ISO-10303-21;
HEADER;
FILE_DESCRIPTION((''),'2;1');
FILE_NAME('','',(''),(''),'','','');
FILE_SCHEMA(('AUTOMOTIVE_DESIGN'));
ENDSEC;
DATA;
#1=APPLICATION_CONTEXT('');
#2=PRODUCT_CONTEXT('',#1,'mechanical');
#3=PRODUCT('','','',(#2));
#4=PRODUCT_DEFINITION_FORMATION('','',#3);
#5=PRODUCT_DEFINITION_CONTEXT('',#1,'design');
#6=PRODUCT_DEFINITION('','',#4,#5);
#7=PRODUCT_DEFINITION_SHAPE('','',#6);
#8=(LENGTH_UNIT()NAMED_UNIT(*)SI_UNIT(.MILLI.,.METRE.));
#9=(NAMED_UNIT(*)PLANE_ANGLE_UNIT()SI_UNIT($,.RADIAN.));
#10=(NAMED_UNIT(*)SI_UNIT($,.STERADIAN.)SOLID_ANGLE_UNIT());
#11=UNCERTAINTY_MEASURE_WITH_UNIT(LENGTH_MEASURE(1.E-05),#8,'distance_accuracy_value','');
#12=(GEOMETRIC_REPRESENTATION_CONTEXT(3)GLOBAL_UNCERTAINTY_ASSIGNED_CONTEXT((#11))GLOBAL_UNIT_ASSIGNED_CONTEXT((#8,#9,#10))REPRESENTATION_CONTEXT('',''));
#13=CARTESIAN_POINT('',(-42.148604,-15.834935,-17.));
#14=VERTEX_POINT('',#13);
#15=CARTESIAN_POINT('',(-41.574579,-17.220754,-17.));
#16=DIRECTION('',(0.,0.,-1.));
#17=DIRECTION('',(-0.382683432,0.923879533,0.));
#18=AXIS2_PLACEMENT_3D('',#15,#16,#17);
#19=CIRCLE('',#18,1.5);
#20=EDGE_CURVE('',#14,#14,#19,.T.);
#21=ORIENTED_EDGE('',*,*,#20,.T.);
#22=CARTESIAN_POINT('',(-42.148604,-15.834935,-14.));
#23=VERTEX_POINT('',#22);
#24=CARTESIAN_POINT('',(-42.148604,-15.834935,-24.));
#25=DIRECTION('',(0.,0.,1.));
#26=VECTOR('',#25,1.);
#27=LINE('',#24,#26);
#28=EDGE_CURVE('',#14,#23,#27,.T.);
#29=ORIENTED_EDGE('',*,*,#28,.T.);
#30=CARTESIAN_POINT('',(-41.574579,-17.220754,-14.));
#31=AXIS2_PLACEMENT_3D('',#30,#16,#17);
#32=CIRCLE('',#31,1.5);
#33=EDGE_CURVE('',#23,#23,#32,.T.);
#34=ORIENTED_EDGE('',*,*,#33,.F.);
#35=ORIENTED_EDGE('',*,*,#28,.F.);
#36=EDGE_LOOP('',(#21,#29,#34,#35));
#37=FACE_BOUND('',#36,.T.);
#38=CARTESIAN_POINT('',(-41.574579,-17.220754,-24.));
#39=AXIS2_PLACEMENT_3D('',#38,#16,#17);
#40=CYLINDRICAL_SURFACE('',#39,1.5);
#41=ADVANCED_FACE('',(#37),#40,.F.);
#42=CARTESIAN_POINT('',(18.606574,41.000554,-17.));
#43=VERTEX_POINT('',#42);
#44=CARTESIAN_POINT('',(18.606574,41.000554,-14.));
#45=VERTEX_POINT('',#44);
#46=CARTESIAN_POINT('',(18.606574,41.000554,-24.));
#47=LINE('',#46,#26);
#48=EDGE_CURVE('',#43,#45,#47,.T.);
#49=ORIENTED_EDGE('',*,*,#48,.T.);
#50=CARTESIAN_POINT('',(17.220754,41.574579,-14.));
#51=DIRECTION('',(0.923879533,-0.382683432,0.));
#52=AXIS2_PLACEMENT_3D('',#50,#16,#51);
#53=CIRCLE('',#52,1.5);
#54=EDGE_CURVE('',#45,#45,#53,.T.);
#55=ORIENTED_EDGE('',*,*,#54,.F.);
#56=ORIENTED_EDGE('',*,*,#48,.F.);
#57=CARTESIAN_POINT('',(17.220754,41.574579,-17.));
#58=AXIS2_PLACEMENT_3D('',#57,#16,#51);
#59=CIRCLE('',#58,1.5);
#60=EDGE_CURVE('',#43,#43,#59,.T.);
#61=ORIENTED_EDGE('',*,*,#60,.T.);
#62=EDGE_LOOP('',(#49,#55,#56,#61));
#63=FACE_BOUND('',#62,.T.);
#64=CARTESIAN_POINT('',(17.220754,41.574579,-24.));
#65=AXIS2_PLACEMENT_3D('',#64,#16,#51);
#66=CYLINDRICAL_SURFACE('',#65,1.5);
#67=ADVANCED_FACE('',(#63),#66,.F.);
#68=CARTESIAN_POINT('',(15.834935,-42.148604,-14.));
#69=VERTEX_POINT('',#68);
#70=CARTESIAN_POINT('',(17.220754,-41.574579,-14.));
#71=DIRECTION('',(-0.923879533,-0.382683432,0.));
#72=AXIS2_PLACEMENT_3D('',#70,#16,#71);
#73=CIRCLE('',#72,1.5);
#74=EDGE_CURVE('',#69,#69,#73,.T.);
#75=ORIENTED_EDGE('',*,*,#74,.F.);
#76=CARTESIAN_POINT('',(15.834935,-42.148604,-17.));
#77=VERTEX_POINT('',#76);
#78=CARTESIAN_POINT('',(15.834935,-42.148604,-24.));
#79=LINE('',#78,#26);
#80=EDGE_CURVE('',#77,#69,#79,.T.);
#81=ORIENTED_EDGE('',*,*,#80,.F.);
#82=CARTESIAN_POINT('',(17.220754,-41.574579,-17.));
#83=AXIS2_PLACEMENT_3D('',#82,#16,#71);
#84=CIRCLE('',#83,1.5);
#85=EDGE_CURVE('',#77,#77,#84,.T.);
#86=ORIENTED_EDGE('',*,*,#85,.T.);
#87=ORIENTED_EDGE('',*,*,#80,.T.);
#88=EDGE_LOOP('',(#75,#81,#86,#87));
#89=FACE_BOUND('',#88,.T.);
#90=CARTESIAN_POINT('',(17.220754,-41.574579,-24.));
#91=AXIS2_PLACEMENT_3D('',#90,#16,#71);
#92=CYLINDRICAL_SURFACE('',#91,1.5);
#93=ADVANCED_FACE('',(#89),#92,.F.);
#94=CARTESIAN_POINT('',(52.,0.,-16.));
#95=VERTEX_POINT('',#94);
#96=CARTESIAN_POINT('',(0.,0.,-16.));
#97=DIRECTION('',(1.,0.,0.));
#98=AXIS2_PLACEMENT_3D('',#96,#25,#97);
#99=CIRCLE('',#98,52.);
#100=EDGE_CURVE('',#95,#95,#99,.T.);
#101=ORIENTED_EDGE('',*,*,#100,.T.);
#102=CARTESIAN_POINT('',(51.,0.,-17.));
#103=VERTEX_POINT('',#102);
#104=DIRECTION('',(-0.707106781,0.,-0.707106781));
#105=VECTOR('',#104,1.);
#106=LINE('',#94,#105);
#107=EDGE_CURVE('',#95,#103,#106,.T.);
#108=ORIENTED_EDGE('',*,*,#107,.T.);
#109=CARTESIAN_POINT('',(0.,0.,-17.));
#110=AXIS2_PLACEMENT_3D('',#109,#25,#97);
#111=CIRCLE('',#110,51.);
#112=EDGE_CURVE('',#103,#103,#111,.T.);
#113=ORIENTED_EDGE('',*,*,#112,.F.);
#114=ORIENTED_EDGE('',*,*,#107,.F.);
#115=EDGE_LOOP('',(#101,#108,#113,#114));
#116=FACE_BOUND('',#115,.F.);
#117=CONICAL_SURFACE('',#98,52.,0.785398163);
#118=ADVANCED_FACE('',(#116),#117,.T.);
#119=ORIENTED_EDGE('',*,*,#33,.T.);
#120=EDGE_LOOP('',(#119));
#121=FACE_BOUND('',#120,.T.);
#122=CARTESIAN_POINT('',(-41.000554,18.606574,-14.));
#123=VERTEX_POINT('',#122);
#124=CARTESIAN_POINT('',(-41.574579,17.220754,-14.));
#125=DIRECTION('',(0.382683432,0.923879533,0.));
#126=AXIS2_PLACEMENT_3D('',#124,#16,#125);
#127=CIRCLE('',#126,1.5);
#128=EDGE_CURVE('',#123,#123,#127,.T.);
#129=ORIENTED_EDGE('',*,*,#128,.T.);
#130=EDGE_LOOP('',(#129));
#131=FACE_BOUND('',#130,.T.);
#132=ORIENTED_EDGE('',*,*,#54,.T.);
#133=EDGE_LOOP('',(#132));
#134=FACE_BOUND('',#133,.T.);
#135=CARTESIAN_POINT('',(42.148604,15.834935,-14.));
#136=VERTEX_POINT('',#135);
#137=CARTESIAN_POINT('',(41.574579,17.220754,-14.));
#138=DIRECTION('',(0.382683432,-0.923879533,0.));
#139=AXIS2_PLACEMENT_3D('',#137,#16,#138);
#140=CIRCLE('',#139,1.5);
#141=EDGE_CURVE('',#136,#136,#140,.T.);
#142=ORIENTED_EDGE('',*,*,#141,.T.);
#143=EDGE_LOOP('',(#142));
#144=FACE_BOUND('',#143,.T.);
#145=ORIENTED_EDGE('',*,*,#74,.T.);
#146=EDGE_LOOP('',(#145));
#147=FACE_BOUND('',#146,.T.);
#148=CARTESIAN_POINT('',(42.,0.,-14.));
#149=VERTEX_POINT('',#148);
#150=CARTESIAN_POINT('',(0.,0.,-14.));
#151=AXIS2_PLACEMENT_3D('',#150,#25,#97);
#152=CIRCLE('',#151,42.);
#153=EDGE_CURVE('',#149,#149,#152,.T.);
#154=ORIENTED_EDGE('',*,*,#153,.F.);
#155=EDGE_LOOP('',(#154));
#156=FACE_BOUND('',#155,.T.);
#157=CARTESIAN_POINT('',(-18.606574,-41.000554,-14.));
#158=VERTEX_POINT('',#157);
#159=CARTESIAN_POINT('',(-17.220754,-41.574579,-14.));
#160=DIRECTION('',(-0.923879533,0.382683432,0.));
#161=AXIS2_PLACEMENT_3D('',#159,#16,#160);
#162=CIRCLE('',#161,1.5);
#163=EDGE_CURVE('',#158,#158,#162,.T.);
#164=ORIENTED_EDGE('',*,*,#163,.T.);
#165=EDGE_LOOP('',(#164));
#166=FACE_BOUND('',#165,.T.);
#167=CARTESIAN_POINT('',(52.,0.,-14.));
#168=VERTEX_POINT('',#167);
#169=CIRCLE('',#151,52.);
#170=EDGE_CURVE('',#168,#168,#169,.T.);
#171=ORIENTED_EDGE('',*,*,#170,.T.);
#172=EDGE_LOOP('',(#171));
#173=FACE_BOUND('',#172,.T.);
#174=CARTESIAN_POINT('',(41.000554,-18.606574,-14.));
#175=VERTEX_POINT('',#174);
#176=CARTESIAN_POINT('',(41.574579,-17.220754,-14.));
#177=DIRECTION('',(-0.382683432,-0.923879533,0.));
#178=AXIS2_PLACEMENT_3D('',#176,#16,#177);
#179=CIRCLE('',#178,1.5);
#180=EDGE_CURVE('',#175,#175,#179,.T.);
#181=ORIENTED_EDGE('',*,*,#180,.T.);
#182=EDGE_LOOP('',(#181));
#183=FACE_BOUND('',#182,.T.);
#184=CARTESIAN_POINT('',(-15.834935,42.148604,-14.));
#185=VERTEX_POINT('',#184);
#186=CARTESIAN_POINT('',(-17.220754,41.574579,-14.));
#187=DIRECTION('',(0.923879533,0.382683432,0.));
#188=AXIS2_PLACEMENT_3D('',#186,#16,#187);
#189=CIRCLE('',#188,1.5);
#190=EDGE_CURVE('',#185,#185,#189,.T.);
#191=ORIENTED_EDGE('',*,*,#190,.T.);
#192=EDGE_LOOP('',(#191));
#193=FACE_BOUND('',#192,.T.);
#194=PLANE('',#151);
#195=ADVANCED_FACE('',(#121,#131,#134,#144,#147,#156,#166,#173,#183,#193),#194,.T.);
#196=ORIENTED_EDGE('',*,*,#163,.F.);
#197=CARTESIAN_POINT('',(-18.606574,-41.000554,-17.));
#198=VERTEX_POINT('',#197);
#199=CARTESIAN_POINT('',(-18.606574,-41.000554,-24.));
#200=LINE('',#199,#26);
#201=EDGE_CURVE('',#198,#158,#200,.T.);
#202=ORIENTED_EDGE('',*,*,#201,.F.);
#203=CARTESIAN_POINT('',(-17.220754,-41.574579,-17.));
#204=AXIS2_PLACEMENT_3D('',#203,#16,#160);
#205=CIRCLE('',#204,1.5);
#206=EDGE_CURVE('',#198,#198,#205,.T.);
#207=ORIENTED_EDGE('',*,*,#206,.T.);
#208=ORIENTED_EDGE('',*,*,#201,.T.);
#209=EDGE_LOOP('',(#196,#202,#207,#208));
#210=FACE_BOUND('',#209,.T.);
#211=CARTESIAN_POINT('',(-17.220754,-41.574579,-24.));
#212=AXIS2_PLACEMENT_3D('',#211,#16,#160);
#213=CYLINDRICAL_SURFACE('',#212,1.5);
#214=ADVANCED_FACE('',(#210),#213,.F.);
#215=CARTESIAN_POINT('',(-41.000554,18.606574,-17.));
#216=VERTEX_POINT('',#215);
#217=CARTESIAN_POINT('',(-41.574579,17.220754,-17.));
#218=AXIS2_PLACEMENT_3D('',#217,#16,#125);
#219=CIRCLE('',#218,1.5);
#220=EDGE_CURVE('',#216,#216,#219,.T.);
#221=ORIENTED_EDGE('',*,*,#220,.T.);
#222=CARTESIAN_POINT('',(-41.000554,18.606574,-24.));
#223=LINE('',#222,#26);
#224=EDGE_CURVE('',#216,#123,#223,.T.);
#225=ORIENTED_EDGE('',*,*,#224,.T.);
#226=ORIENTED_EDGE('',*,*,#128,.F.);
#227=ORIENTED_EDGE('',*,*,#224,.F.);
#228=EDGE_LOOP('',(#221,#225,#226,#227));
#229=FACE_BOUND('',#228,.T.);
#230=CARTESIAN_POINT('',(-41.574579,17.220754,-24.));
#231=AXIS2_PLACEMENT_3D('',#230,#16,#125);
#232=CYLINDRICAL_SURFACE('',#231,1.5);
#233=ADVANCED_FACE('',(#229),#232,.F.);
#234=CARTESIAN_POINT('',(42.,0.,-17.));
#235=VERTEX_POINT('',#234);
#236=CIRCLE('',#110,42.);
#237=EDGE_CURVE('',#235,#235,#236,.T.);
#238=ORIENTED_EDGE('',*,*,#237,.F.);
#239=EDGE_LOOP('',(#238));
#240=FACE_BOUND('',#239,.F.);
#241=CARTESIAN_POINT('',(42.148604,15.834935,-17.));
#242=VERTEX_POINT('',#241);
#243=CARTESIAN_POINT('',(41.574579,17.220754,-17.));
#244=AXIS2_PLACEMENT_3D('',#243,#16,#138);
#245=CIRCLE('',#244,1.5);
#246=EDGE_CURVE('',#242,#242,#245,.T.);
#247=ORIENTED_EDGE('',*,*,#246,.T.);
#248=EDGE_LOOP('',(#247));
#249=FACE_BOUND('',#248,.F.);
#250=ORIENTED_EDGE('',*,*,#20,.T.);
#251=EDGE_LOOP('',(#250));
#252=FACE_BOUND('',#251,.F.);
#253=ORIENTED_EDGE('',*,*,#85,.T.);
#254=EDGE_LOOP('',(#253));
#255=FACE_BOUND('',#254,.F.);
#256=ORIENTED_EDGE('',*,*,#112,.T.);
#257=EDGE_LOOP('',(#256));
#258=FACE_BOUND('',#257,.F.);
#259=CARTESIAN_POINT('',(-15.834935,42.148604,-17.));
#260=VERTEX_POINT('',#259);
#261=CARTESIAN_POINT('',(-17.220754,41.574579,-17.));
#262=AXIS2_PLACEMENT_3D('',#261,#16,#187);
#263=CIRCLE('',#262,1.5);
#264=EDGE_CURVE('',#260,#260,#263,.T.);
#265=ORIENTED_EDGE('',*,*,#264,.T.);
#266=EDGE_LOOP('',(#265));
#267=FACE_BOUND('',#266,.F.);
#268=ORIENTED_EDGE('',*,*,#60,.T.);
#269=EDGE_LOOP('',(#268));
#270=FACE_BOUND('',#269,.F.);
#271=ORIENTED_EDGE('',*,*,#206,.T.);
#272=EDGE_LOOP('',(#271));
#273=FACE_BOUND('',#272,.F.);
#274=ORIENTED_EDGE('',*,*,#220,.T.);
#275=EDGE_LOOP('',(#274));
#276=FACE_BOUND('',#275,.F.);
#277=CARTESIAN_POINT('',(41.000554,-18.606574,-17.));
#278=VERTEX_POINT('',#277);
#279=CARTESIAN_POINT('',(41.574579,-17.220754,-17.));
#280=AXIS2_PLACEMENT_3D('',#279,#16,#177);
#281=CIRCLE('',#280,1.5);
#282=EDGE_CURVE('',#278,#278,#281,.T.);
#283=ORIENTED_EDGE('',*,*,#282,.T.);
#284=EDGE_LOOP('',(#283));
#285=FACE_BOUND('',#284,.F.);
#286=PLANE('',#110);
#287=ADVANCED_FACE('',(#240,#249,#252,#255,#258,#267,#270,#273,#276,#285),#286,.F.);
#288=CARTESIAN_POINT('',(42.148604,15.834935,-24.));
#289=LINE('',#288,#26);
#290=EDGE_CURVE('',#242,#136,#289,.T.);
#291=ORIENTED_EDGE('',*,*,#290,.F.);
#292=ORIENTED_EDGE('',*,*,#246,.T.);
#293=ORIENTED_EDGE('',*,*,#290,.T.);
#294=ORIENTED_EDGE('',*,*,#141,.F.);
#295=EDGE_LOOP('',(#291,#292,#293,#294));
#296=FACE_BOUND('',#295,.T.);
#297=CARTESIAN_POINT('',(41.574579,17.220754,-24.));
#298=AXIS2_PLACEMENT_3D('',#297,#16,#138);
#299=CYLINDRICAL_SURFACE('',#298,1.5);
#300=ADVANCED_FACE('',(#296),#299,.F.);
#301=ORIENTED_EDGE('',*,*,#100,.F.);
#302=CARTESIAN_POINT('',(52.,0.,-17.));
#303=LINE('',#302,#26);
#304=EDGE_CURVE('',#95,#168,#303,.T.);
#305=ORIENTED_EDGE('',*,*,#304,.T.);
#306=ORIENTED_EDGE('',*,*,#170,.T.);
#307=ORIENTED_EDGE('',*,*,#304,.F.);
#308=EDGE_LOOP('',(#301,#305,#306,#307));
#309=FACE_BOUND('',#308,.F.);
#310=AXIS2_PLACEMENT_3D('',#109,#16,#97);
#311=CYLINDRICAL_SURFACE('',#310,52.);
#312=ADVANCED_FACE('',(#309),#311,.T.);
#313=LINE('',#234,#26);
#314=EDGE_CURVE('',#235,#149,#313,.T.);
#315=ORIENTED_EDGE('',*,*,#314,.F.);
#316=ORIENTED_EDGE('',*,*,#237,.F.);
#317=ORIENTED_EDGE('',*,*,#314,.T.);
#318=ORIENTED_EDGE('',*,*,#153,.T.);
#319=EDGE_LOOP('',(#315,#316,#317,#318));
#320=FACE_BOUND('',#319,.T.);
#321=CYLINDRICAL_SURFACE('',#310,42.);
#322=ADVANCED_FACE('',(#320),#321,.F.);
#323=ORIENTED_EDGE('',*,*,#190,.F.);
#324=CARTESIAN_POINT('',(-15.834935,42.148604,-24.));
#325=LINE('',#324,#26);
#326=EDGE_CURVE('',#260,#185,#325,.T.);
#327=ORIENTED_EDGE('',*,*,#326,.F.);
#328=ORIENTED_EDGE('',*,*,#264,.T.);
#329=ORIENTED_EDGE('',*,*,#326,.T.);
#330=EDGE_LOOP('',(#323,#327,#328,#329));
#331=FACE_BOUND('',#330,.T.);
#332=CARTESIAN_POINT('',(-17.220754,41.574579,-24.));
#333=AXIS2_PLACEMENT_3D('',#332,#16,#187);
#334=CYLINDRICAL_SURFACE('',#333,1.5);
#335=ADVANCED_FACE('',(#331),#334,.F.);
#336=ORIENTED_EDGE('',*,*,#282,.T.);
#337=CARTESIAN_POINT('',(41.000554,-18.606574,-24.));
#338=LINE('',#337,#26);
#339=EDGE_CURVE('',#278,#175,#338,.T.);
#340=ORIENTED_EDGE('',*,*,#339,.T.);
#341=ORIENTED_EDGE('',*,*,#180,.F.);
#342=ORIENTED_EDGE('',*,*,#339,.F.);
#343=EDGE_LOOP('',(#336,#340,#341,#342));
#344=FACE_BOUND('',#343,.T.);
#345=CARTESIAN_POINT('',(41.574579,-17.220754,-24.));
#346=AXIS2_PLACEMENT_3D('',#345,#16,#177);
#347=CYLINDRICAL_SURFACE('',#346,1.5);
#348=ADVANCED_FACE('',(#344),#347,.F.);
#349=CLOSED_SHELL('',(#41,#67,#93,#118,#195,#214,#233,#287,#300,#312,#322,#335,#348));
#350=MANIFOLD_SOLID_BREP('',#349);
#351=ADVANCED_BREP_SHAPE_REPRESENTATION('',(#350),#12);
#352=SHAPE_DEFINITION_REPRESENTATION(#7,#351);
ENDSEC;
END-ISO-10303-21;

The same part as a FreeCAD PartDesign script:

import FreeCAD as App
import Part
import Sketcher
from FreeCAD import Vector


def edges_at(feature, points):
    """Names of the edges that pass closest to the given points."""
    edges = feature.Shape.Edges
    near = lambda p: min(range(len(edges)), key=lambda i: edges[i].distToShape(Part.Vertex(*p))[0])
    return sorted({f"Edge{near(p) + 1}" for p in points})

doc = App.newDocument("Part")
body = doc.addObject("PartDesign::Body", "Body")

sketch1 = body.newObject("Sketcher::SketchObject", "Sketch")
sketch1.AttachmentSupport = (doc.getObject("XY_Plane"), [""])
sketch1.MapMode = "FlatFace"
sketch1.addGeometry(Part.Circle(Vector(0, 0, 0), Vector(0, 0, 1), 1.5), False)
sketch1.addConstraint(Sketcher.Constraint("Coincident", 0, 3, -1, 1))
sketch1.addConstraint(Sketcher.Constraint("Diameter", 0, 3.0))
pad1 = body.newObject("PartDesign::Pad", "Pad")
pad1.Profile = sketch1
pad1.Length = 20
body2 = doc.addObject("PartDesign::Body", "Body001")
doc.recompute()

body.Placement = App.Placement(Vector(-31.819805, 31.819805, -18), App.Rotation(Vector(0, 0, 1), 45))
boolean = body2.newObject("PartDesign::Boolean", "Boolean")
boolean.Type = "Fuse"
boolean.addObjects([body])
body3 = doc.addObject("PartDesign::Body", "Body002")

sketch2 = body3.newObject("Sketcher::SketchObject", "Sketch001")
sketch2.AttachmentSupport = (doc.getObject("XY_Plane002"), [""])
sketch2.MapMode = "FlatFace"
sketch2.AttachmentOffset = App.Placement(Vector(0, 0, -18), App.Rotation())
sketch2.addGeometry(Part.Circle(Vector(-45, 0, 0), Vector(0, 0, 1), 1.5), False)
sketch2.addConstraint(Sketcher.Constraint("PointOnObject", 0, 3, -1))
sketch2.addConstraint(Sketcher.Constraint("Diameter", 0, 3.0))
sketch2.addConstraint(Sketcher.Constraint("DistanceX", 0, 3, -1, 1, 45.0))
pad2 = body3.newObject("PartDesign::Pad", "Pad001")
pad2.Profile = sketch2
pad2.Length = 20
body4 = doc.addObject("PartDesign::Body", "Body003")

sketch3 = body4.newObject("Sketcher::SketchObject", "Sketch002")
sketch3.AttachmentSupport = (doc.getObject("XY_Plane003"), [""])
sketch3.MapMode = "FlatFace"
sketch3.addGeometry(Part.Circle(Vector(0, 0, 0), Vector(0, 0, 1), 1.5), False)
sketch3.addConstraint(Sketcher.Constraint("Coincident", 0, 3, -1, 1))
sketch3.addConstraint(Sketcher.Constraint("Diameter", 0, 3.0))
pad3 = body4.newObject("PartDesign::Pad", "Pad002")
pad3.Profile = sketch3
pad3.Length = 20
body5 = doc.addObject("PartDesign::Body", "Body004")
doc.recompute()

body4.Placement = App.Placement(Vector(-31.819805, -31.819805, -18), App.Rotation(Vector(0, 0, 1), 135))
boolean2 = body5.newObject("PartDesign::Boolean", "Boolean001")
boolean2.Type = "Fuse"
boolean2.addObjects([body4])
body6 = doc.addObject("PartDesign::Body", "Body005")

sketch4 = body6.newObject("Sketcher::SketchObject", "Sketch003")
sketch4.AttachmentSupport = (doc.getObject("XY_Plane005"), [""])
sketch4.MapMode = "FlatFace"
sketch4.AttachmentOffset = App.Placement(Vector(0, 0, -18), App.Rotation())
sketch4.addGeometry(Part.Circle(Vector(0, -45, 0), Vector(0, 0, 1), 1.5), False)
sketch4.addConstraint(Sketcher.Constraint("PointOnObject", 0, 3, -2))
sketch4.addConstraint(Sketcher.Constraint("Diameter", 0, 3.0))
sketch4.addConstraint(Sketcher.Constraint("DistanceY", 0, 3, -1, 1, 45.0))
pad4 = body6.newObject("PartDesign::Pad", "Pad003")
pad4.Profile = sketch4
pad4.Length = 20
body7 = doc.addObject("PartDesign::Body", "Body006")

sketch5 = body7.newObject("Sketcher::SketchObject", "Sketch004")
sketch5.AttachmentSupport = (doc.getObject("XY_Plane006"), [""])
sketch5.MapMode = "FlatFace"
sketch5.addGeometry(Part.Circle(Vector(0, 0, 0), Vector(0, 0, 1), 1.5), False)
sketch5.addConstraint(Sketcher.Constraint("Coincident", 0, 3, -1, 1))
sketch5.addConstraint(Sketcher.Constraint("Diameter", 0, 3.0))
pad5 = body7.newObject("PartDesign::Pad", "Pad004")
pad5.Profile = sketch5
pad5.Length = 20
body8 = doc.addObject("PartDesign::Body", "Body007")
doc.recompute()

body7.Placement = App.Placement(Vector(31.819805, -31.819805, -18), App.Rotation(Vector(0, 0, 1), 225))
boolean3 = body8.newObject("PartDesign::Boolean", "Boolean002")
boolean3.Type = "Fuse"
boolean3.addObjects([body7])
body9 = doc.addObject("PartDesign::Body", "Body008")

sketch6 = body9.newObject("Sketcher::SketchObject", "Sketch005")
sketch6.AttachmentSupport = (doc.getObject("XY_Plane008"), [""])
sketch6.MapMode = "FlatFace"
sketch6.AttachmentOffset = App.Placement(Vector(0, 0, -18), App.Rotation())
sketch6.addGeometry(Part.Circle(Vector(45, 0, 0), Vector(0, 0, 1), 1.5), False)
sketch6.addConstraint(Sketcher.Constraint("PointOnObject", 0, 3, -1))
sketch6.addConstraint(Sketcher.Constraint("Diameter", 0, 3.0))
sketch6.addConstraint(Sketcher.Constraint("DistanceX", -1, 1, 0, 3, 45.0))
pad6 = body9.newObject("PartDesign::Pad", "Pad005")
pad6.Profile = sketch6
pad6.Length = 20
body10 = doc.addObject("PartDesign::Body", "Body009")

sketch7 = body10.newObject("Sketcher::SketchObject", "Sketch006")
sketch7.AttachmentSupport = (doc.getObject("XY_Plane009"), [""])
sketch7.MapMode = "FlatFace"
sketch7.addGeometry(Part.Circle(Vector(0, 0, 0), Vector(0, 0, 1), 1.5), False)
sketch7.addConstraint(Sketcher.Constraint("Coincident", 0, 3, -1, 1))
sketch7.addConstraint(Sketcher.Constraint("Diameter", 0, 3.0))
pad7 = body10.newObject("PartDesign::Pad", "Pad006")
pad7.Profile = sketch7
pad7.Length = 20
body11 = doc.addObject("PartDesign::Body", "Body010")
doc.recompute()

body10.Placement = App.Placement(Vector(31.819805, 31.819805, -18), App.Rotation(Vector(0, 0, -1), 45))
boolean4 = body11.newObject("PartDesign::Boolean", "Boolean003")
boolean4.Type = "Fuse"
boolean4.addObjects([body10])
body12 = doc.addObject("PartDesign::Body", "Body011")
body12.AllowCompound = True

sketch8 = body12.newObject("Sketcher::SketchObject", "Sketch007")
sketch8.AttachmentSupport = (doc.getObject("XY_Plane011"), [""])
sketch8.MapMode = "FlatFace"
sketch8.AttachmentOffset = App.Placement(Vector(0, 0, -18), App.Rotation())
sketch8.addGeometry(Part.Circle(Vector(0, 45, 0), Vector(0, 0, 1), 1.5), False)
sketch8.addConstraint(Sketcher.Constraint("PointOnObject", 0, 3, -2))
sketch8.addConstraint(Sketcher.Constraint("Diameter", 0, 3.0))
sketch8.addConstraint(Sketcher.Constraint("DistanceY", -1, 1, 0, 3, 45.0))
pad8 = body12.newObject("PartDesign::Pad", "Pad007")
pad8.Profile = sketch8
pad8.Length = 20
doc.recompute()

boolean5 = body12.newObject("PartDesign::Boolean", "Boolean004")
boolean5.Type = "Fuse"
boolean5.addObjects([body2])
doc.recompute()

boolean6 = body12.newObject("PartDesign::Boolean", "Boolean005")
boolean6.Type = "Fuse"
boolean6.addObjects([body3])
doc.recompute()

boolean7 = body12.newObject("PartDesign::Boolean", "Boolean006")
boolean7.Type = "Fuse"
boolean7.addObjects([body5])
doc.recompute()

boolean8 = body12.newObject("PartDesign::Boolean", "Boolean007")
boolean8.Type = "Fuse"
boolean8.addObjects([body6])
doc.recompute()

boolean9 = body12.newObject("PartDesign::Boolean", "Boolean008")
boolean9.Type = "Fuse"
boolean9.addObjects([body8])
doc.recompute()

boolean10 = body12.newObject("PartDesign::Boolean", "Boolean009")
boolean10.Type = "Fuse"
boolean10.addObjects([body9])
doc.recompute()

boolean11 = body12.newObject("PartDesign::Boolean", "Boolean010")
boolean11.Type = "Fuse"
boolean11.addObjects([body11])
body13 = doc.addObject("PartDesign::Body", "Body012")
body13.AllowCompound = True
doc.recompute()

body12.Placement = App.Placement(Vector(0, 0, 0), App.Rotation(Vector(0, 0, 1), 22.5))
boolean12 = body13.newObject("PartDesign::Boolean", "Boolean011")
boolean12.Type = "Fuse"
boolean12.addObjects([body12])
body14 = doc.addObject("PartDesign::Body", "Body013")

sketch9 = body14.newObject("Sketcher::SketchObject", "Sketch008")
sketch9.AttachmentSupport = (doc.getObject("XY_Plane013"), [""])
sketch9.MapMode = "FlatFace"
sketch9.AttachmentOffset = App.Placement(Vector(0, 0, -11), App.Rotation())
sketch9.addGeometry(Part.Circle(Vector(0, 0, 0), Vector(0, 0, 1), 52), False)
sketch9.addGeometry(Part.Circle(Vector(0, 0, 0), Vector(0, 0, 1), 42), False)
sketch9.addConstraint(Sketcher.Constraint("Coincident", 0, 3, -1, 1))
sketch9.addConstraint(Sketcher.Constraint("Coincident", 1, 3, -1, 1))
sketch9.addConstraint(Sketcher.Constraint("Diameter", 0, 104.0))
sketch9.addConstraint(Sketcher.Constraint("Diameter", 1, 84.0))
pad9 = body14.newObject("PartDesign::Pad", "Pad008")
pad9.Profile = sketch9
pad9.Length = 3
doc.recompute()

boolean13 = body14.newObject("PartDesign::Boolean", "Boolean012")
boolean13.Type = "Cut"
boolean13.addObjects([body13])
body15 = doc.addObject("PartDesign::Body", "Body014")
doc.recompute()

body14.Placement = App.Placement(Vector(0, 0, -4), App.Rotation(Vector(0, 0, 1), 0))
boolean14 = body15.newObject("PartDesign::Boolean", "Boolean013")
boolean14.Type = "Fuse"
boolean14.addObjects([body14])
doc.recompute()

chamfer = body15.newObject("PartDesign::Chamfer", "Chamfer")
chamfer.Base = (boolean14, edges_at(boolean14, [(-52, 0, -15)]))
chamfer.Size = 1
body16 = doc.addObject("PartDesign::Body", "Body015")
doc.recompute()

body15.Placement = App.Placement(Vector(0, 0, -2), App.Rotation(Vector(0, 0, 1), 0))
boolean15 = body16.newObject("PartDesign::Boolean", "Boolean014")
boolean15.Type = "Fuse"
boolean15.addObjects([body15])

doc.recompute()
